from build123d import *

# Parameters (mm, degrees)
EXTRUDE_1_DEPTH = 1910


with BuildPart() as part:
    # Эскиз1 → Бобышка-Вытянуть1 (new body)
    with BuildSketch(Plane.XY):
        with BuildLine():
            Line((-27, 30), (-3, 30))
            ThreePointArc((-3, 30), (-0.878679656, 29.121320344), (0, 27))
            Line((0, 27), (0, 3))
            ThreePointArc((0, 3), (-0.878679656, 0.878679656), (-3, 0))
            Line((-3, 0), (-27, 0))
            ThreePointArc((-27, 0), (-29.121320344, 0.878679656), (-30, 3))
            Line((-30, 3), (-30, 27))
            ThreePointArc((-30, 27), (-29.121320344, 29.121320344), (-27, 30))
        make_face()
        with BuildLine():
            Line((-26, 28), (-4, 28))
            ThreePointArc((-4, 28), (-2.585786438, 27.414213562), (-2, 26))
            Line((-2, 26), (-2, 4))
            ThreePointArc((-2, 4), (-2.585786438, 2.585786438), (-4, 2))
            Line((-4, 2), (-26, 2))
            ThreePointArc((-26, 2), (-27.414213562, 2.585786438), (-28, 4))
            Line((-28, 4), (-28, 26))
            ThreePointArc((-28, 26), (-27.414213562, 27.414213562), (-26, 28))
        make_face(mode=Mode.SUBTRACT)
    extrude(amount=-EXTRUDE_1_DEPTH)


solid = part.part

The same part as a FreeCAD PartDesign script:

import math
import FreeCAD as App
import Part
import Sketcher
from FreeCAD import Vector
Q = App.Units.Quantity

doc = App.newDocument("Part")
body = doc.addObject("PartDesign::Body", "Body")

sketch1 = body.newObject("Sketcher::SketchObject", "Sketch")
sketch1.AttachmentSupport = (doc.getObject("XY_Plane"), [""])
sketch1.MapMode = "FlatFace"
sketch1.addGeometry(Part.LineSegment(Vector(-3, 30, 0), Vector(-27, 30, 0)), False)
sketch1.addGeometry(Part.ArcOfCircle(Part.Circle(Vector(-27, 27, 0), Vector(0, 0, 1), 3), math.radians(90), math.radians(180)), False)
sketch1.addGeometry(Part.LineSegment(Vector(-30, 27, 0), Vector(-30, 3, 0)), False)
sketch1.addGeometry(Part.ArcOfCircle(Part.Circle(Vector(-27, 3, 0), Vector(0, 0, 1), 3), math.radians(180), math.radians(270)), False)
sketch1.addGeometry(Part.LineSegment(Vector(-27, 0, 0), Vector(-3, 0, 0)), False)
sketch1.addGeometry(Part.ArcOfCircle(Part.Circle(Vector(-3, 3, 0), Vector(0, 0, 1), 3), math.radians(-90), math.radians(0)), False)
sketch1.addGeometry(Part.LineSegment(Vector(0, 3, 0), Vector(0, 27, 0)), False)
sketch1.addGeometry(Part.ArcOfCircle(Part.Circle(Vector(-3, 27, 0), Vector(0, 0, 1), 3), math.radians(0), math.radians(90)), False)
sketch1.addGeometry(Part.LineSegment(Vector(-26, 28, 0), Vector(-4, 28, 0)), False)
sketch1.addGeometry(Part.ArcOfCircle(Part.Circle(Vector(-4, 26, 0), Vector(0, 0, 1), 2), math.radians(0), math.radians(90)), False)
sketch1.addGeometry(Part.LineSegment(Vector(-2, 26, 0), Vector(-2, 4, 0)), False)
sketch1.addGeometry(Part.ArcOfCircle(Part.Circle(Vector(-4, 4, 0), Vector(0, 0, 1), 2), math.radians(-90), math.radians(0)), False)
sketch1.addGeometry(Part.LineSegment(Vector(-4, 2, 0), Vector(-26, 2, 0)), False)
sketch1.addGeometry(Part.ArcOfCircle(Part.Circle(Vector(-26, 4, 0), Vector(0, 0, 1), 2), math.radians(-180), math.radians(-90)), False)
sketch1.addGeometry(Part.LineSegment(Vector(-28, 4, 0), Vector(-28, 26, 0)), False)
sketch1.addGeometry(Part.ArcOfCircle(Part.Circle(Vector(-26, 26, 0), Vector(0, 0, 1), 2), math.radians(90), math.radians(180)), False)
sketch1.addConstraint(Sketcher.Constraint("Tangent", 0, 2, 1, 1))
sketch1.addConstraint(Sketcher.Constraint("Tangent", 1, 2, 2, 1))
sketch1.addConstraint(Sketcher.Constraint("Tangent", 2, 2, 3, 1))
sketch1.addConstraint(Sketcher.Constraint("Tangent", 3, 2, 4, 1))
sketch1.addConstraint(Sketcher.Constraint("Tangent", 4, 2, 5, 1))
sketch1.addConstraint(Sketcher.Constraint("Tangent", 5, 2, 6, 1))
sketch1.addConstraint(Sketcher.Constraint("Tangent", 6, 2, 7, 1))
sketch1.addConstraint(Sketcher.Constraint("Tangent", 7, 2, 0, 1))
sketch1.addConstraint(Sketcher.Constraint("Tangent", 8, 2, 9, 2))
sketch1.addConstraint(Sketcher.Constraint("Tangent", 9, 1, 10, 1))
sketch1.addConstraint(Sketcher.Constraint("Tangent", 10, 2, 11, 2))
sketch1.addConstraint(Sketcher.Constraint("Tangent", 11, 1, 12, 1))
sketch1.addConstraint(Sketcher.Constraint("Tangent", 12, 2, 13, 2))
sketch1.addConstraint(Sketcher.Constraint("Tangent", 13, 1, 14, 1))
sketch1.addConstraint(Sketcher.Constraint("Tangent", 14, 2, 15, 2))
sketch1.addConstraint(Sketcher.Constraint("Tangent", 15, 1, 8, 1))
sketch1.addConstraint(Sketcher.Constraint("Horizontal", 0))
sketch1.addConstraint(Sketcher.Constraint("Vertical", 2))
sketch1.addConstraint(Sketcher.Constraint("Horizontal", 4))
sketch1.addConstraint(Sketcher.Constraint("Vertical", 6))
sketch1.addConstraint(Sketcher.Constraint("Horizontal", 8))
sketch1.addConstraint(Sketcher.Constraint("Vertical", 10))
sketch1.addConstraint(Sketcher.Constraint("Horizontal", 12))
sketch1.addConstraint(Sketcher.Constraint("Vertical", 14))
sketch1.addConstraint(Sketcher.Constraint("Equal", 1, 3))
sketch1.addConstraint(Sketcher.Constraint("Equal", 3, 5))
sketch1.addConstraint(Sketcher.Constraint("Equal", 5, 7))
sketch1.addConstraint(Sketcher.Constraint("Equal", 9, 11))
sketch1.addConstraint(Sketcher.Constraint("Equal", 11, 13))
sketch1.addConstraint(Sketcher.Constraint("Equal", 13, 15))
sketch1.addConstraint(Sketcher.Constraint("PointOnObject", 3, 2, -1))
sketch1.addConstraint(Sketcher.Constraint("PointOnObject", 5, 2, -2))
sketch1.addConstraint(Sketcher.Constraint("Equal", 4, 2))
sketch1.addConstraint(Sketcher.Constraint("Equal", 12, 10))
sketch1.addConstraint(Sketcher.Constraint("Radius", 1, Q("3 mm")))
sketch1.addConstraint(Sketcher.Constraint("Radius", 9, Q("2 mm")))
sketch1.addConstraint(Sketcher.Constraint("DistanceX", 0, 2, 0, 1, Q("24 mm")))
sketch1.addConstraint(Sketcher.Constraint("DistanceX", 8, 1, 8, 2, Q("22 mm")))
sketch1.addConstraint(Sketcher.Constraint("DistanceX", 9, 3, -1, 1, Q("4 mm")))
sketch1.addConstraint(Sketcher.Constraint("DistanceY", -1, 1, 9, 3, Q("26 mm")))
pad1 = body.newObject("PartDesign::Pad", "Pad")
pad1.Profile = sketch1
pad1.Length = 1910
pad1.Reversed = True

doc.recompute()
